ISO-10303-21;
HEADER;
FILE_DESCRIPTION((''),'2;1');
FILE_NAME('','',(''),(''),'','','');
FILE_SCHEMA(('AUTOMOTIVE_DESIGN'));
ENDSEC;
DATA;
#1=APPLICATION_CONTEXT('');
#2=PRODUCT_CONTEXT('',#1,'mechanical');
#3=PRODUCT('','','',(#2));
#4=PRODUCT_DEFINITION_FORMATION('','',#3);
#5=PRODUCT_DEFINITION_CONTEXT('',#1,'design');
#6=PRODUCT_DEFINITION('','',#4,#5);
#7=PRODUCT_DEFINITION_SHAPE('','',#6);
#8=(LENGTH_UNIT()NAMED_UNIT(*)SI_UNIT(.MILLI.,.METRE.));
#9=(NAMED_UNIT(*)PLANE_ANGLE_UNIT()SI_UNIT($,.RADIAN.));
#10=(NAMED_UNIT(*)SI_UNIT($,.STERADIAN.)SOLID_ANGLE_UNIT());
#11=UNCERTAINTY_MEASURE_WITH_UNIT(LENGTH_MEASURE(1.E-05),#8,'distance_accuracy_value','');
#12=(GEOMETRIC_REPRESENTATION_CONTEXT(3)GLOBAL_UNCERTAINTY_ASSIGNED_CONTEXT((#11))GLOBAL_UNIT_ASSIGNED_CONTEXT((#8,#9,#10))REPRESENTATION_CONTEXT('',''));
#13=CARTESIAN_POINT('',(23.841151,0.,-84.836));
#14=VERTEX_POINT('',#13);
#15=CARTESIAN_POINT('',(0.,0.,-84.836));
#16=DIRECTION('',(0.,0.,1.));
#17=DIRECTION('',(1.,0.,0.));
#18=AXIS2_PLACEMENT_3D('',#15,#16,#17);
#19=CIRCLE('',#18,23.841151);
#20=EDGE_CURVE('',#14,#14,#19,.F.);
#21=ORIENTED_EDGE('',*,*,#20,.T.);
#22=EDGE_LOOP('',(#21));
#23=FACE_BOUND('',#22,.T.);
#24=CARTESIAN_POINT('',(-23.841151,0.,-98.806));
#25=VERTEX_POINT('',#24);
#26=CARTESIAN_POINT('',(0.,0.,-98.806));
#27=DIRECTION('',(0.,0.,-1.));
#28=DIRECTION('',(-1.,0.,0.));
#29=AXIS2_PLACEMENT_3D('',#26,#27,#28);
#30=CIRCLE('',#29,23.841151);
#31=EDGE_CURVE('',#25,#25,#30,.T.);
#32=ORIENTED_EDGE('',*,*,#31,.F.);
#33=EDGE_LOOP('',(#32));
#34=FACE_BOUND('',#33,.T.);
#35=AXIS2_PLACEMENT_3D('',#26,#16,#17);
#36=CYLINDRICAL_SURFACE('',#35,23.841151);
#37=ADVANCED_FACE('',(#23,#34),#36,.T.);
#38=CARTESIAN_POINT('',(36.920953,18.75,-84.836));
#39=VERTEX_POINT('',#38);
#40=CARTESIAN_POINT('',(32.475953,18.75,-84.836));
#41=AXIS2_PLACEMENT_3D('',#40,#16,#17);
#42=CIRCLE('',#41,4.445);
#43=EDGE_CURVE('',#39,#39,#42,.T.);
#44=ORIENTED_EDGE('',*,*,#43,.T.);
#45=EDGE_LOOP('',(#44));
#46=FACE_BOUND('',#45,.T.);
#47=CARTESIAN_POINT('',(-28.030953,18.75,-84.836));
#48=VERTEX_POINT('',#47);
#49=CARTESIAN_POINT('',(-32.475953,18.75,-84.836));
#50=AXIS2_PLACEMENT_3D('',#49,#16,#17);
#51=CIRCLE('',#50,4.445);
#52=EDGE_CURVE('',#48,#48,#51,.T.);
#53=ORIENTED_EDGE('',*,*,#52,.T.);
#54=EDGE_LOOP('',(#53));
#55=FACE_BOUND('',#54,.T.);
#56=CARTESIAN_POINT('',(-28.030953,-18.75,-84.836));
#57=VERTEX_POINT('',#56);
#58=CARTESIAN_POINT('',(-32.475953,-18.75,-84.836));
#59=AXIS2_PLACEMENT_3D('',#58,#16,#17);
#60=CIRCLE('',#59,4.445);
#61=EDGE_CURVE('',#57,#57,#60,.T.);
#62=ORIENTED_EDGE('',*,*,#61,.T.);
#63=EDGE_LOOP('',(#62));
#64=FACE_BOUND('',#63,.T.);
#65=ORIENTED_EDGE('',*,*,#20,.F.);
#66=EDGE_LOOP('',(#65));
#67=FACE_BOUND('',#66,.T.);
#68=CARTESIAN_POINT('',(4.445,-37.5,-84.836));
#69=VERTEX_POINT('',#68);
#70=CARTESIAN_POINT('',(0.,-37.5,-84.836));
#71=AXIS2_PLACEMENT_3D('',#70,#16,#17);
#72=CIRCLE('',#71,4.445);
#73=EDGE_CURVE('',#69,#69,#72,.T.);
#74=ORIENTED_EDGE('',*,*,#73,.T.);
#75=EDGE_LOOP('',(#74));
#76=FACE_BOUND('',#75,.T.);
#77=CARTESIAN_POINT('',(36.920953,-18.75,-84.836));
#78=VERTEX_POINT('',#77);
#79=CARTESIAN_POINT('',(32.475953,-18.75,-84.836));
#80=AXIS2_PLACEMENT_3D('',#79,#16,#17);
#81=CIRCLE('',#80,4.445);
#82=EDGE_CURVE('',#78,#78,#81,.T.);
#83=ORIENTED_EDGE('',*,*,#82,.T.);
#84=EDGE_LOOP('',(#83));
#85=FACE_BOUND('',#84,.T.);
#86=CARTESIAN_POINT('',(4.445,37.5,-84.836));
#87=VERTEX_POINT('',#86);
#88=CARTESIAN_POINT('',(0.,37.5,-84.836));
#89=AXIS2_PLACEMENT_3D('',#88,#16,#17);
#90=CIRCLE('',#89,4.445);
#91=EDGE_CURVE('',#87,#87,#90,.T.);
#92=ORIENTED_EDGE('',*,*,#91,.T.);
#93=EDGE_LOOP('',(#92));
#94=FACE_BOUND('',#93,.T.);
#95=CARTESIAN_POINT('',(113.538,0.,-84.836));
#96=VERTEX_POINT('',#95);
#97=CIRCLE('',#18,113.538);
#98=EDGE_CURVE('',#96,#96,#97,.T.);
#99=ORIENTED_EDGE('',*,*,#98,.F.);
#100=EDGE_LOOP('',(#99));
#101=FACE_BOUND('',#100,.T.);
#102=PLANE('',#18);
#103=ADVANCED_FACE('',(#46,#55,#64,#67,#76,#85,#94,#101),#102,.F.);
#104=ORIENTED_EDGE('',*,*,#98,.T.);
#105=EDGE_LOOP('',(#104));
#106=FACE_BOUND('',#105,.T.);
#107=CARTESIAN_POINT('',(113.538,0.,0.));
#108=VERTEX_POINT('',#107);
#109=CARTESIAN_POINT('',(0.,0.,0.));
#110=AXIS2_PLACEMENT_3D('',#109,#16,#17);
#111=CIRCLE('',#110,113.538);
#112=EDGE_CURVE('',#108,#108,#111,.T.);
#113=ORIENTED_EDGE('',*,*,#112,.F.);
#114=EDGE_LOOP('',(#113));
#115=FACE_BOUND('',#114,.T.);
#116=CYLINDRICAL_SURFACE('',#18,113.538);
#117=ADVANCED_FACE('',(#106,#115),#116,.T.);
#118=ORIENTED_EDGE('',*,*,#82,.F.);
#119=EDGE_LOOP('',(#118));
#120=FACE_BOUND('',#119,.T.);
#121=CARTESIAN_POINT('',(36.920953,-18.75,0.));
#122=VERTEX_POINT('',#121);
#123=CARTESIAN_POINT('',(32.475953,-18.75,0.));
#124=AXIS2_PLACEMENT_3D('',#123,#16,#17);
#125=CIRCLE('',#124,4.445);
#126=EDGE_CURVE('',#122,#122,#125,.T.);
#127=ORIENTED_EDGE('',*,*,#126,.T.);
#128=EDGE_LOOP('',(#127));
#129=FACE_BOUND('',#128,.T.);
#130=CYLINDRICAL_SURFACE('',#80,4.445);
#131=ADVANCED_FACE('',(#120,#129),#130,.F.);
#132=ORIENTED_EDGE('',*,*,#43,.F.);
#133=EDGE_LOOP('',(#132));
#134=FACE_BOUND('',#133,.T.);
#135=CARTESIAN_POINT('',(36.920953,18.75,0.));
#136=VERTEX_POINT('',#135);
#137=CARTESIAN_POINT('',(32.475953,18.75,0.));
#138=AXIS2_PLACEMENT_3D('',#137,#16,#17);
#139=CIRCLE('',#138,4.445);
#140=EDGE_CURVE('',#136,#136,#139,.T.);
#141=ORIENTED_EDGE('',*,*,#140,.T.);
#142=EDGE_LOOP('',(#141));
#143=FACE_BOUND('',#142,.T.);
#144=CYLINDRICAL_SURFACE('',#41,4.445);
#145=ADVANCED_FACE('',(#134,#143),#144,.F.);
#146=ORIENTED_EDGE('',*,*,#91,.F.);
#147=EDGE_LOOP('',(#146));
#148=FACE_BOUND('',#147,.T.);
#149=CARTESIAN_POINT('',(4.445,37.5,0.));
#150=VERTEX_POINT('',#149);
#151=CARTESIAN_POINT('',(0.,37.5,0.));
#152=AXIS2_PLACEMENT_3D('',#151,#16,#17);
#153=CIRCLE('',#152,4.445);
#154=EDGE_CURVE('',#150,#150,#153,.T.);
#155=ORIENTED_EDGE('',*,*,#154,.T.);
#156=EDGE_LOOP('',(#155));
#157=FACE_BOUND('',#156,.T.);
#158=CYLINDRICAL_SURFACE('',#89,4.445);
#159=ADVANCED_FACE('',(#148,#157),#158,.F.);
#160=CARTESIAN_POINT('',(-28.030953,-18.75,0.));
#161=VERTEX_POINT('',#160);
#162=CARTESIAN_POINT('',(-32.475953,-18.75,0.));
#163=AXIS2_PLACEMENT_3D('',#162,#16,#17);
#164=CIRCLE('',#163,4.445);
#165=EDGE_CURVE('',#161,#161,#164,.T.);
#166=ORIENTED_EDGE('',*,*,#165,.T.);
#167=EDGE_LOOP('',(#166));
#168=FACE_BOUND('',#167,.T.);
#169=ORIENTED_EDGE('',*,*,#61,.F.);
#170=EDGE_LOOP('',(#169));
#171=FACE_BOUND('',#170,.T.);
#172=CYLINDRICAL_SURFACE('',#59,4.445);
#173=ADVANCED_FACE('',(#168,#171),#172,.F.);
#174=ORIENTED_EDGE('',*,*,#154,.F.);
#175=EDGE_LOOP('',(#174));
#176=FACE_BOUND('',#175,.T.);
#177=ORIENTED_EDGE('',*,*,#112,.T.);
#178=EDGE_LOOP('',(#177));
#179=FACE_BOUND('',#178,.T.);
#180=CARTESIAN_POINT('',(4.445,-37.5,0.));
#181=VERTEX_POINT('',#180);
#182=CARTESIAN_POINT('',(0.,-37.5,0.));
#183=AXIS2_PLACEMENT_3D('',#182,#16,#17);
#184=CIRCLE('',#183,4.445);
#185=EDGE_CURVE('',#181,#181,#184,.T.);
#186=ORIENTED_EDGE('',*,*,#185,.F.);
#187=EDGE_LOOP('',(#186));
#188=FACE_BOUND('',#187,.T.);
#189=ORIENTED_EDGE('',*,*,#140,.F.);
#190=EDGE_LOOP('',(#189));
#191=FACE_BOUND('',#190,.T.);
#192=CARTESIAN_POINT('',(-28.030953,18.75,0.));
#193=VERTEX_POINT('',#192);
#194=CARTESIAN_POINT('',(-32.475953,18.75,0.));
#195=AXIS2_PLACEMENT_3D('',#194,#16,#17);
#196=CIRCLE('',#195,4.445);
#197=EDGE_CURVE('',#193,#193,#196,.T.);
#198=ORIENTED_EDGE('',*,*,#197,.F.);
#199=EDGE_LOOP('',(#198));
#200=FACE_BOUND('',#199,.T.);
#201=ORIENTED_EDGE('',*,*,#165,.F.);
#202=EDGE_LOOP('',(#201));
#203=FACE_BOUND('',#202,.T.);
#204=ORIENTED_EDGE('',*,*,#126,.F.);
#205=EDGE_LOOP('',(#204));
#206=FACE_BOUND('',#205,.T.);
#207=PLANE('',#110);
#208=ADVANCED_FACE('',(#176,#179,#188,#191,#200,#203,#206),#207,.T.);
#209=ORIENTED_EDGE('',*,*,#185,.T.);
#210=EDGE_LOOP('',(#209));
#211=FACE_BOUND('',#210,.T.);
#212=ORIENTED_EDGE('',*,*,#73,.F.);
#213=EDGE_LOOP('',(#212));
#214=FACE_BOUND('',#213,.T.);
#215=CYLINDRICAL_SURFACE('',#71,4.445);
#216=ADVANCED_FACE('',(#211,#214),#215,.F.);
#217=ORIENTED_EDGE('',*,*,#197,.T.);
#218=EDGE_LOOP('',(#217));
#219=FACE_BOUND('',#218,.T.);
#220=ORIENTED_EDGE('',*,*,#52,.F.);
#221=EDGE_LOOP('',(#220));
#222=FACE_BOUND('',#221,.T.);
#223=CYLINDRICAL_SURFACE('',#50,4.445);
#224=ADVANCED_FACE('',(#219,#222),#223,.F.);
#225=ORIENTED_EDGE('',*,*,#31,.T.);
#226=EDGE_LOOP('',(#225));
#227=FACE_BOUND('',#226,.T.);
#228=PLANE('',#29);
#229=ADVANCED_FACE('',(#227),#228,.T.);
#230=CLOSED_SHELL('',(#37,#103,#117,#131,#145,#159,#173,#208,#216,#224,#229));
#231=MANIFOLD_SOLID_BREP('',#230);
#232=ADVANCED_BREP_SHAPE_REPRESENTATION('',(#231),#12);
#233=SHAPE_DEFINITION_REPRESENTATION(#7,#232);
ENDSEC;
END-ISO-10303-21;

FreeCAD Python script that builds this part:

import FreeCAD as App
import Part
import Sketcher

V = App.Vector
Q = App.Units.Quantity

doc = App.newDocument("Part")
body = doc.addObject("PartDesign::Body", "Body")

# Sketch on XY plane
sketch1 = body.newObject("Sketcher::SketchObject", "Sketch")
sketch1.AttachmentSupport = (doc.getObject("XY_Plane"), [""])
sketch1.MapMode = "FlatFace"
sketch1.addGeometry(Part.Circle(V(0, 0, 0), V(0, 0, 1), 114), False)
sketch1.addConstraint([
    Sketcher.Constraint("Coincident", 0, 3, -1, 1),
    Sketcher.Constraint("Diameter", 0, Q("8.94 in")),
])
pad1 = body.newObject("PartDesign::Pad", "Pad")
pad1.Profile = sketch1
pad1.Length = Q("3.34 in")
pad1.Reversed = True

# Sketch on XY plane
sketch2 = body.newObject("Sketcher::SketchObject", "Sketch001")
sketch2.AttachmentSupport = (doc.getObject("XY_Plane"), [""])
sketch2.MapMode = "FlatFace"
sketch2.addGeometry([
    Part.Circle(V(0, 37.5, 0), V(0, 0, 1), 4.4),  # 0
    Part.Circle(V(32.5, 18.7, 0), V(0, 0, 1), 4.4),  # 1
    Part.Circle(V(32.5, -18.7, 0), V(0, 0, 1), 4.4),  # 2
    Part.Circle(V(0, -37.5, 0), V(0, 0, 1), 4.4),  # 3
    Part.Circle(V(-32.5, -18.7, 0), V(0, 0, 1), 4.4),  # 4
    Part.Circle(V(-32.5, 18.7, 0), V(0, 0, 1), 4.4),  # 5
], False)
sketch2.addConstraint([
    Sketcher.Constraint("Equal", 0, 1),
    Sketcher.Constraint("Equal", 1, 2),
    Sketcher.Constraint("Equal", 2, 3),
    Sketcher.Constraint("Equal", 3, 4),
    Sketcher.Constraint("Equal", 4, 5),
    Sketcher.Constraint("Symmetric", 0, 3, 3, 3, -1, 1),
    Sketcher.Constraint("Symmetric", 1, 3, 4, 3, -1, 1),
    Sketcher.Constraint("Symmetric", 2, 3, 5, 3, -1, 1),
    Sketcher.Constraint("Symmetric", 2, 3, 4, 3, -2),
    Sketcher.Constraint("PointOnObject", 0, 3, -2),
    Sketcher.Constraint("Diameter", 0, Q("0.35 in")),
    Sketcher.Constraint("DistanceY", -1, 1, 0, 3, Q("37.5 mm")),
    Sketcher.Constraint("DistanceY", -1, 1, 1, 3, Q("18.75 mm")),
    Sketcher.Constraint("DistanceX", -1, 1, 1, 3, Q("32.475953 mm")),
])
pocket1 = body.newObject("PartDesign::Pocket", "Pocket")
pocket1.Profile = sketch2
pocket1.Type = "ThroughAll"
pocket1.Midplane = True

# Sketch on XY plane
sketch3 = body.newObject("Sketcher::SketchObject", "Sketch002")
sketch3.AttachmentSupport = (doc.getObject("XY_Plane"), [""])
sketch3.MapMode = "FlatFace"
sketch3.AttachmentOffset = App.Placement(V(0, 0, -3.34 * 25.4), App.Rotation())
sketch3.addGeometry(Part.Circle(V(0, 0, 0), V(0, 0, 1), 24), False)
sketch3.addConstraint([
    Sketcher.Constraint("Coincident", 0, 3, -1, 1),
    Sketcher.Constraint("Diameter", 0, Q("47.682302 mm")),
])
pad2 = body.newObject("PartDesign::Pad", "Pad001")
pad2.Profile = sketch3
pad2.Length = Q("0.55 in")
pad2.Reversed = True

doc.recompute()
